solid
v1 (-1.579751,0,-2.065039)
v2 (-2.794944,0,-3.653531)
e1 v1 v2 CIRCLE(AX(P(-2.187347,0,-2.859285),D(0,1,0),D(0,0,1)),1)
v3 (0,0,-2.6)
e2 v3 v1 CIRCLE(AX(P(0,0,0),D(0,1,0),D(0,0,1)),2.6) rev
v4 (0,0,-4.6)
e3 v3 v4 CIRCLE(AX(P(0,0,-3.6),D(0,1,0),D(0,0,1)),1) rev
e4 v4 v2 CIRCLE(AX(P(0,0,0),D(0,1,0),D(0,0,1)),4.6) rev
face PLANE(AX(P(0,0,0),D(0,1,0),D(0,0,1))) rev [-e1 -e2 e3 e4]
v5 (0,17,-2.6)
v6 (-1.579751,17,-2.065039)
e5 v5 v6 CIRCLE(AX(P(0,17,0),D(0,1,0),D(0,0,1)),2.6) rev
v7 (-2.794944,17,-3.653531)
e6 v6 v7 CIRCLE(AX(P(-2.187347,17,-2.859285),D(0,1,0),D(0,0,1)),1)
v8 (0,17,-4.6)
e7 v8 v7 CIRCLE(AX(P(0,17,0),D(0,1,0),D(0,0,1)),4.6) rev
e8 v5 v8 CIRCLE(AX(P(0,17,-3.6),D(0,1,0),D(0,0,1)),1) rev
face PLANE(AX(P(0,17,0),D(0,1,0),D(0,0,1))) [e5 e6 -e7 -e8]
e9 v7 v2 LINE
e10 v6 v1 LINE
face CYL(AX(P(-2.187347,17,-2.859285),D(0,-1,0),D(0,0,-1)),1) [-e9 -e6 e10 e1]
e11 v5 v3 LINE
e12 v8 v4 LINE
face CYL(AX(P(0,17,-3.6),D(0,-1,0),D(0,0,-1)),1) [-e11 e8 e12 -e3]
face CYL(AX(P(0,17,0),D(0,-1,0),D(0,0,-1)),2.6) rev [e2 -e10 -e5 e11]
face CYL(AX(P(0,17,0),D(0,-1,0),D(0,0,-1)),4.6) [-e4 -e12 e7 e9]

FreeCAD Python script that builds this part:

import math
import FreeCAD as App
import Part
import Sketcher
Q = App.Units.Quantity

doc = App.newDocument("Part")
params = doc.addObject("Spreadsheet::Sheet", "Params")
for row, (alias, value) in enumerate([
    ("sketch1_radius", "1 mm"),
    ("sketch1_radius2", "2.6 mm"),
    ("pad1_length", "17 mm"),
], start=1):
    params.set(f"A{row}", alias)
    params.set(f"B{row}", "=" + value)
    params.setAlias(f"B{row}", alias)

body = doc.addObject("PartDesign::Body", "Body")

# Sketch on XZ plane
sketch1 = doc.addObject("Sketcher::SketchObject", "Sketch")
body.addObject(sketch1)
sketch1.AttachmentSupport = (doc.XZ_Plane, [""])
sketch1.MapMode = "FlatFace"
sketch1.addGeometry(Part.ArcOfCircle(Part.Circle(App.Vector(0, 0, 0), App.Vector(0, 0, 1), 2.6), math.radians(-90), math.radians(233)), False)
sketch1.addGeometry(Part.ArcOfCircle(Part.Circle(App.Vector(-2.2, -2.9, 0), App.Vector(0, 0, 1), 1), math.radians(-127), math.radians(53)), False)
sketch1.addGeometry(Part.ArcOfCircle(Part.Circle(App.Vector(0, 0, 0), App.Vector(0, 0, 1), 4.6), math.radians(-90), math.radians(233)), False)
sketch1.addGeometry(Part.ArcOfCircle(Part.Circle(App.Vector(0, -3.6, 0), App.Vector(0, 0, 1), 1), math.radians(90), math.radians(270)), False)
sketch1.addConstraint(Sketcher.Constraint("Tangent", 0, 2, 1, 2))
sketch1.addConstraint(Sketcher.Constraint("Tangent", 1, 1, 2, 2))
sketch1.addConstraint(Sketcher.Constraint("Tangent", 2, 1, 3, 2))
sketch1.addConstraint(Sketcher.Constraint("Tangent", 3, 1, 0, 1))
sketch1.addConstraint(Sketcher.Constraint("Coincident", 0, 3, -1, 1))
sketch1.addConstraint(Sketcher.Constraint("Coincident", 2, 3, -1, 1))
sketch1.addConstraint(Sketcher.Constraint("PointOnObject", 3, 3, -2))
sketch1.addConstraint(Sketcher.Constraint("Radius", 1, Q("1 mm")))
sketch1.addConstraint(Sketcher.Constraint("Radius", 0, Q("2.6 mm")))
sketch1.addConstraint(Sketcher.Constraint("DistanceX", 0, 2, -1, 1, Q("1.579751 mm")))
sketch1.setExpression("Constraints[7]", "Params.sketch1_radius")
sketch1.setExpression("Constraints[8]", "Params.sketch1_radius2")
pad1 = doc.addObject("PartDesign::Pad", "Pad")
body.addObject(pad1)
pad1.Profile = sketch1
pad1.setExpression("Length", "Params.pad1_length")
pad1.Reversed = True

doc.recompute()
